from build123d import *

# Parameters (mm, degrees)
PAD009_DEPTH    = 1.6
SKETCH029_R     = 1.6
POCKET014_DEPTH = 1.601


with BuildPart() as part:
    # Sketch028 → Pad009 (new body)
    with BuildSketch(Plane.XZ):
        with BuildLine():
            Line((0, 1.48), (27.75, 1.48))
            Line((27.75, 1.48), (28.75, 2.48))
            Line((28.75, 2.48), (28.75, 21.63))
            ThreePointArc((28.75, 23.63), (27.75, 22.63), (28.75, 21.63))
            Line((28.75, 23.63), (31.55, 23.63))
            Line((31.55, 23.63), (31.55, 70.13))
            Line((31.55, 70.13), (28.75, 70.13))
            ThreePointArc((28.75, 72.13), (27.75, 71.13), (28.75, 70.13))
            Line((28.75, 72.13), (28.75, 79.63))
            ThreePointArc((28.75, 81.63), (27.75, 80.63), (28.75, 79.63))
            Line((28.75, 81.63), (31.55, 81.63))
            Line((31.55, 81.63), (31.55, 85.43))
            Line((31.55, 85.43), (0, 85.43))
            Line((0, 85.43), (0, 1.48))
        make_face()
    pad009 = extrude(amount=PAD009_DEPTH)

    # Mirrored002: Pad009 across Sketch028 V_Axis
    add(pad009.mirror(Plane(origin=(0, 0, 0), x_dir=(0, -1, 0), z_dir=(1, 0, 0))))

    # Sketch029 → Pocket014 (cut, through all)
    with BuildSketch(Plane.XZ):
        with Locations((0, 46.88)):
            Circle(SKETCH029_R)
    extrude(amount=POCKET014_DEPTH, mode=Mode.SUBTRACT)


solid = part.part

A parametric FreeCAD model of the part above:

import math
import FreeCAD as App
import Part
import Sketcher
Q = App.Units.Quantity

doc = App.newDocument("Part")
body = doc.addObject("PartDesign::Body", "Body")

# Sketch on XZ plane
sketch1 = doc.addObject("Sketcher::SketchObject", "Sketch")
body.addObject(sketch1)
sketch1.AttachmentSupport = (doc.XZ_Plane, [""])
sketch1.MapMode = "FlatFace"
sketch1.addGeometry([
    Part.LineSegment(App.Vector(0, 1.48, 0), App.Vector(27.75, 1.48, 0)),  # 0
    Part.LineSegment(App.Vector(27.75, 1.48, 0), App.Vector(28.75, 2.48, 0)),  # 1
    Part.LineSegment(App.Vector(28.75, 2.48, 0), App.Vector(28.75, 21.63, 0)),  # 2
    Part.ArcOfCircle(Part.Circle(App.Vector(28.75, 22.63, 0), App.Vector(0, 0, 1), 1), math.radians(90), math.radians(270)),  # 3
    Part.LineSegment(App.Vector(28.75, 23.63, 0), App.Vector(31.55, 23.63, 0)),  # 4
    Part.LineSegment(App.Vector(31.55, 23.63, 0), App.Vector(31.55, 70.13, 0)),  # 5
    Part.LineSegment(App.Vector(31.55, 70.13, 0), App.Vector(28.75, 70.13, 0)),  # 6
    Part.ArcOfCircle(Part.Circle(App.Vector(28.75, 71.13, 0), App.Vector(0, 0, 1), 1), math.radians(90), math.radians(270)),  # 7
    Part.LineSegment(App.Vector(28.75, 72.13, 0), App.Vector(28.75, 79.63, 0)),  # 8
    Part.ArcOfCircle(Part.Circle(App.Vector(28.75, 80.63, 0), App.Vector(0, 0, 1), 1), math.radians(90), math.radians(270)),  # 9
    Part.LineSegment(App.Vector(28.75, 81.63, 0), App.Vector(31.55, 81.63, 0)),  # 10
    Part.LineSegment(App.Vector(31.55, 81.63, 0), App.Vector(31.55, 85.43, 0)),  # 11
    Part.LineSegment(App.Vector(31.55, 85.43, 0), App.Vector(0, 85.43, 0)),  # 12
    Part.LineSegment(App.Vector(0, 85.43, 0), App.Vector(0, 1.48, 0)),  # 13
], False)
sketch1.addConstraint([
    Sketcher.Constraint("Coincident", 0, 2, 1, 1),
    Sketcher.Constraint("Coincident", 1, 2, 2, 1),
    Sketcher.Constraint("Coincident", 2, 2, 3, 2),
    Sketcher.Constraint("Tangent", 3, 1, 4, 1),
    Sketcher.Constraint("Coincident", 4, 2, 5, 1),
    Sketcher.Constraint("Coincident", 5, 2, 6, 1),
    Sketcher.Constraint("Tangent", 6, 2, 7, 2),
    Sketcher.Constraint("Coincident", 7, 1, 8, 1),
    Sketcher.Constraint("Coincident", 8, 2, 9, 2),
    Sketcher.Constraint("Tangent", 9, 1, 10, 1),
    Sketcher.Constraint("Coincident", 10, 2, 11, 1),
    Sketcher.Constraint("Coincident", 11, 2, 12, 1),
    Sketcher.Constraint("Coincident", 12, 2, 13, 1),
    Sketcher.Constraint("Coincident", 13, 2, 0, 1),
    Sketcher.Constraint("Horizontal", 0),
    Sketcher.Constraint("Vertical", 2),
    Sketcher.Constraint("Horizontal", 4),
    Sketcher.Constraint("Vertical", 5),
    Sketcher.Constraint("Horizontal", 6),
    Sketcher.Constraint("Vertical", 8),
    Sketcher.Constraint("Horizontal", 10),
    Sketcher.Constraint("Vertical", 11),
    Sketcher.Constraint("Horizontal", 12),
    Sketcher.Constraint("Vertical", 13),
    Sketcher.Constraint("Equal", 3, 7),
    Sketcher.Constraint("Equal", 7, 9),
    Sketcher.Constraint("PointOnObject", 12, 2, -2),
    Sketcher.Constraint("Vertical", 3, 3, 7, 3),
    Sketcher.Constraint("Vertical", 7, 3, 9, 3),
    Sketcher.Constraint("Vertical", 9, 3, 1, 2),
    Sketcher.Constraint("Vertical", 6, 2, 7, 1),
    Sketcher.Constraint("Vertical", 5, 2, 10, 2),
    Sketcher.Constraint("Radius", 3, Q("1 mm")),
    Sketcher.Constraint("Angle", 1, Q("45 deg")),
    Sketcher.Constraint("DistanceX", 4, 1, 4, 2, Q("2.8 mm")),
    Sketcher.Constraint("DistanceY", 5, 1, 5, 2, Q("46.5 mm")),
    Sketcher.Constraint("DistanceY", 8, 1, 8, 2, Q("7.5 mm")),
    Sketcher.Constraint("DistanceY", 11, 1, 11, 2, Q("3.8 mm")),
    Sketcher.Constraint("DistanceX", 0, 2, 3, 3, Q("1 mm")),
    Sketcher.Constraint("DistanceX", 0, 1, 0, 2, Q("27.75 mm")),
    Sketcher.Constraint("DistanceY", 2, 1, 2, 2, Q("19.15 mm")),
    Sketcher.Constraint("DistanceY", -1, 1, 3, 3, Q("22.63 mm")),
])
pad1 = doc.addObject("PartDesign::Pad", "Pad")
body.addObject(pad1)
pad1.Profile = sketch1
pad1.Length = 1.6
doc.recompute()

mirrored = doc.addObject("PartDesign::Mirrored", "Mirrored")
body.addObject(mirrored)
mirrored.Originals = [pad1]
mirrored.MirrorPlane = (doc.YZ_Plane, [""])
body.Tip = mirrored

# Sketch on XZ plane
sketch2 = doc.addObject("Sketcher::SketchObject", "Sketch001")
body.addObject(sketch2)
sketch2.AttachmentSupport = (doc.XZ_Plane, [""])
sketch2.MapMode = "FlatFace"
sketch2.addGeometry(Part.Circle(App.Vector(0, 46.88, 0), App.Vector(0, 0, 1), 1.6), False)
sketch2.addConstraint([
    Sketcher.Constraint("PointOnObject", 0, 3, -2),
    Sketcher.Constraint("Diameter", 0, Q("3.2 mm")),
    Sketcher.Constraint("DistanceY", -1, 1, 0, 3, Q("46.88 mm")),
])
pocket1 = doc.addObject("PartDesign::Pocket", "Pocket")
body.addObject(pocket1)
pocket1.Profile = sketch2
pocket1.Type = "ThroughAll"
pocket1.Reversed = True

doc.recompute()
